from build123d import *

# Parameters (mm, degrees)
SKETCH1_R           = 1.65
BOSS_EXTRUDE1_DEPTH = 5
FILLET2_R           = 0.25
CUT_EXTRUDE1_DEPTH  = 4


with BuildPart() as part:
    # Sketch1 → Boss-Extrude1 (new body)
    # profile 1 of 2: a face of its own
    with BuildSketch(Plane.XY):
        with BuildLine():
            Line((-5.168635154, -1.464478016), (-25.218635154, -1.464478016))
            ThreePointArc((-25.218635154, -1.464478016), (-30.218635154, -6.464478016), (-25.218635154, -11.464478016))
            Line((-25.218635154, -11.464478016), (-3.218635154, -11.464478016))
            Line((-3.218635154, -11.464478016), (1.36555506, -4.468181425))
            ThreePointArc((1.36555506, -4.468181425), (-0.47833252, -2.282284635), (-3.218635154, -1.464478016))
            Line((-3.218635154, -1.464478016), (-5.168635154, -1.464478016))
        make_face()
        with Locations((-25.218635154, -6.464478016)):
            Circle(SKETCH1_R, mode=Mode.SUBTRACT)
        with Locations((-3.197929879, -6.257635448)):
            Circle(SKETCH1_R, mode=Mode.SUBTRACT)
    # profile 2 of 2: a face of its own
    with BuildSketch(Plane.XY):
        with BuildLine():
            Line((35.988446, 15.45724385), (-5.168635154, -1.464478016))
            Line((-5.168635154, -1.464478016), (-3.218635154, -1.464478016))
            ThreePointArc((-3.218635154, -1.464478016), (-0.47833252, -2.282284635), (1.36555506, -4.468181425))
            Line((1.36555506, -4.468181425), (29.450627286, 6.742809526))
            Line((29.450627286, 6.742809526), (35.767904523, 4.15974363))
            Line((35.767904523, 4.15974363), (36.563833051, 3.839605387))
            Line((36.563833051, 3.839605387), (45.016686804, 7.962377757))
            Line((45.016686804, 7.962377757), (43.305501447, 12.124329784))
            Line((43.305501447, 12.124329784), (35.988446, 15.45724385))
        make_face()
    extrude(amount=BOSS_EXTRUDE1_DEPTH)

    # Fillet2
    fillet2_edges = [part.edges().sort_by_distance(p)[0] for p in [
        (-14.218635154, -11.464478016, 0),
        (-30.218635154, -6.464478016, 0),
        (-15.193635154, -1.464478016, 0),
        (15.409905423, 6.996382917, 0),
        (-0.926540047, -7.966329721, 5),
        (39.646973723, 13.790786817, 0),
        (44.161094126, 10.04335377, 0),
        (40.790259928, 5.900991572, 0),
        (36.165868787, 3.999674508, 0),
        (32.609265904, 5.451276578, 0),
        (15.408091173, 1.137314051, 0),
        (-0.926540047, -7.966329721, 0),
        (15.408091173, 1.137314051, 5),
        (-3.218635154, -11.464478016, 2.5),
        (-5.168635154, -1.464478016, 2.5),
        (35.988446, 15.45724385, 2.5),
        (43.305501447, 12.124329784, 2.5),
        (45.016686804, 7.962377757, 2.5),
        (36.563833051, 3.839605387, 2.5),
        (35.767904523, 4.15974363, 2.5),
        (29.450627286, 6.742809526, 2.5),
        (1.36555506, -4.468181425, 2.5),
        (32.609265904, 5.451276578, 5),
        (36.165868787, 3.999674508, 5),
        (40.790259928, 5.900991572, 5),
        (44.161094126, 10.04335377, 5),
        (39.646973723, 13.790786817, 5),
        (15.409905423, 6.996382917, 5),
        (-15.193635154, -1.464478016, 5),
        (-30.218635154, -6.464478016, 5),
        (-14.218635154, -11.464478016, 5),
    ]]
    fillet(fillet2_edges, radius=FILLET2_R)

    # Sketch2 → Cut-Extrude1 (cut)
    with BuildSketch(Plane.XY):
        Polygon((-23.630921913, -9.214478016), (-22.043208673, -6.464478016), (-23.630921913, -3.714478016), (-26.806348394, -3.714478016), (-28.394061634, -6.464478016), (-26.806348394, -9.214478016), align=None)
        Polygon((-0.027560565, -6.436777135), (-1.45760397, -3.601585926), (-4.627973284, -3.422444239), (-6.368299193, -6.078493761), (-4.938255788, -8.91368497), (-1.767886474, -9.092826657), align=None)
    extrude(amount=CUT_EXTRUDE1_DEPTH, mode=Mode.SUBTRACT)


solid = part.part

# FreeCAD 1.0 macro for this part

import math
import FreeCAD as App
import Part
import Sketcher
from FreeCAD import Vector
Q = App.Units.Quantity


def edges_at(feature, points):
    """Names of the edges that pass closest to the given points."""
    edges = feature.Shape.Edges
    near = lambda p: min(range(len(edges)), key=lambda i: edges[i].distToShape(Part.Vertex(*p))[0])
    return sorted({f"Edge{near(p) + 1}" for p in points})


def add_polygon(sketch, points):
    """Adds a closed chain of lines whose ends are joined by coincident constraints."""
    first, n = sketch.GeometryCount, len(points)
    for a, b in zip(points, points[1:] + points[:1]):
        sketch.addGeometry(Part.LineSegment(App.Vector(*a, 0), App.Vector(*b, 0)), False)
    for i in range(n):
        sketch.addConstraint(Sketcher.Constraint("Coincident", first + i, 2, first + (i + 1) % n, 1))

doc = App.newDocument("Part")
body = doc.addObject("PartDesign::Body", "Body")

# Sketch on XY plane
sketch1 = body.newObject("Sketcher::SketchObject", "Sketch")
sketch1.AttachmentSupport = (doc.getObject("XY_Plane"), [""])
sketch1.MapMode = "FlatFace"
sketch1.addGeometry([
    Part.ArcOfCircle(Part.Circle(Vector(-25.2, -6.5, 0), Vector(0, 0, 1), 5), math.radians(90), math.radians(270)),  # 0
    Part.LineSegment(Vector(-25.2, -11.5, 0), Vector(-3.2, -11.5, 0)),  # 1
    Part.LineSegment(Vector(-3.2, -11.5, 0), Vector(1.4, -4.5, 0)),  # 2
    Part.LineSegment(Vector(1.4, -4.5, 0), Vector(29.5, 6.7, 0)),  # 3
    Part.LineSegment(Vector(29.5, 6.7, 0), Vector(35.8, 4.2, 0)),  # 4
    Part.LineSegment(Vector(35.8, 4.2, 0), Vector(36.6, 3.8, 0)),  # 5
    Part.LineSegment(Vector(36.6, 3.8, 0), Vector(45, 8, 0)),  # 6
    Part.LineSegment(Vector(45, 8, 0), Vector(43.3, 12.1, 0)),  # 7
    Part.LineSegment(Vector(43.3, 12.1, 0), Vector(36, 15.5, 0)),  # 8
    Part.LineSegment(Vector(36, 15.5, 0), Vector(-5.2, -1.5, 0)),  # 9
    Part.LineSegment(Vector(-5.2, -1.5, 0), Vector(-25.2, -1.5, 0)),  # 10
    Part.Circle(Vector(-25.2, -6.5, 0), Vector(0, 0, 1), 1.6),  # 11
    Part.Circle(Vector(-3.2, -6.3, 0), Vector(0, 0, 1), 1.6),  # 12
], False)
sketch1.addConstraint([
    Sketcher.Constraint("Tangent", 0, 2, 1, 1),
    Sketcher.Constraint("Coincident", 1, 2, 2, 1),
    Sketcher.Constraint("Coincident", 2, 2, 3, 1),
    Sketcher.Constraint("Coincident", 3, 2, 4, 1),
    Sketcher.Constraint("Coincident", 4, 2, 5, 1),
    Sketcher.Constraint("Coincident", 5, 2, 6, 1),
    Sketcher.Constraint("Coincident", 6, 2, 7, 1),
    Sketcher.Constraint("Coincident", 7, 2, 8, 1),
    Sketcher.Constraint("Coincident", 8, 2, 9, 1),
    Sketcher.Constraint("Coincident", 9, 2, 10, 1),
    Sketcher.Constraint("Tangent", 10, 2, 0, 1),
    Sketcher.Constraint("Horizontal", 1),
    Sketcher.Constraint("Horizontal", 10),
    Sketcher.Constraint("Coincident", 11, 3, 0, 3),
    Sketcher.Constraint("Equal", 11, 12),
    Sketcher.Constraint("Perpendicular", 7, 9),
    Sketcher.Constraint("Radius", 0, 5.0),
    Sketcher.Constraint("Diameter", 11, 3.3),
    Sketcher.Constraint("DistanceX", 1, 1, 1, 2, 22.0),
    Sketcher.Constraint("Distance", 7, 4.5),
    Sketcher.Constraint("Distance", 9, 44.5),
    Sketcher.Constraint("DistanceX", 10, 2, 10, 1, 20.05),
    Sketcher.Constraint("Angle", 7, Q("112.35 deg")),
    Sketcher.Constraint("Distance", 3, 30.24),
    Sketcher.Constraint("Distance", 5, 0.857899),
    Sketcher.Constraint("DistanceX", -1, 1, 7, 2, 43.305501),
    Sketcher.Constraint("DistanceY", 4, 2, 8, 2, 11.2975),
    Sketcher.Constraint("Distance", 4, 6.82497),
    Sketcher.Constraint("Distance", 6, 9.404679),
    Sketcher.Constraint("DistanceY", 0, 3, -1, 1, 6.464478),
    Sketcher.Constraint("DistanceX", 12, 3, -1, 1, 3.19793),
    Sketcher.Constraint("DistanceY", 2, 2, -1, 1, 4.468181),
    Sketcher.Constraint("DistanceY", -1, 1, 3, 2, 6.74281),
    Sketcher.Constraint("DistanceY", -1, 1, 7, 2, 12.12433),
    Sketcher.Constraint("DistanceX", 1, 2, 2, 2, 4.58419),
    Sketcher.Constraint("DistanceY", 12, 3, 4, 2, 10.417379),
    Sketcher.Constraint("DistanceX", 4, 2, 5, 2, 0.795929),
])
pad1 = body.newObject("PartDesign::Pad", "Pad")
pad1.Profile = sketch1
pad1.Length = 5
doc.recompute()

fillet = body.newObject("PartDesign::Fillet", "Fillet")
fillet.Base = (pad1, edges_at(pad1, [
    (-14.219, -11.464, 0),
    (-30.219, -6.464, 0),
    (-15.194, -1.464, 0),
    (15.41, 6.996, 0),
    (-0.927, -7.966, 5),
    (39.647, 13.791, 0),
    (44.161, 10.043, 0),
    (40.79, 5.901, 0),
    (36.166, 4, 0),
    (32.609, 5.451, 0),
    (15.408, 1.137, 0),
    (-0.927, -7.966, 0),
    (15.408, 1.137, 5),
    (-3.219, -11.464, 2.5),
    (-5.169, -1.464, 2.5),
    (35.988, 15.457, 2.5),
    (43.306, 12.124, 2.5),
    (45.017, 7.962, 2.5),
    (36.564, 3.84, 2.5),
    (35.768, 4.16, 2.5),
    (29.451, 6.743, 2.5),
    (1.366, -4.468, 2.5),
    (32.609, 5.451, 5),
    (36.166, 4, 5),
    (40.79, 5.901, 5),
    (44.161, 10.043, 5),
    (39.647, 13.791, 5),
    (15.41, 6.996, 5),
    (-15.194, -1.464, 5),
    (-30.219, -6.464, 5),
    (-14.219, -11.464, 5),
]))
fillet.Radius = 0.25

# Sketch on XY plane
sketch2 = body.newObject("Sketcher::SketchObject", "Sketch001")
sketch2.AttachmentSupport = (doc.getObject("XY_Plane"), [""])
sketch2.MapMode = "FlatFace"
add_polygon(sketch2, [(-23.6, -9.2), (-22, -6.5), (-23.6, -3.7), (-26.8, -3.7), (-28.4, -6.5), (-26.8, -9.2)])  # lines 0-5
add_polygon(sketch2, [(0, -6.4), (-1.5, -3.6), (-4.6, -3.4), (-6.4, -6.1), (-4.9, -8.9), (-1.8, -9.1)])  # lines 6-11
sketch2.addConstraint([
    Sketcher.Constraint("Horizontal", 2),
    Sketcher.Constraint("Horizontal", 5),
    Sketcher.Constraint("Parallel", 0, 3),
    Sketcher.Constraint("Parallel", 1, 4),
    Sketcher.Constraint("Parallel", 6, 9),
    Sketcher.Constraint("Parallel", 7, 10),
    Sketcher.Constraint("Parallel", 8, 11),
    Sketcher.Constraint("Horizontal", 0, 2, 3, 2),
    Sketcher.Constraint("Vertical", 2, 2, 4, 2),
    Sketcher.Constraint("Vertical", 1, 2, 5, 2),
    Sketcher.Constraint("Equal", 4, 6),
    Sketcher.Constraint("Equal", 6, 7),
    Sketcher.Constraint("Equal", 7, 8),
    Sketcher.Constraint("Equal", 8, 9),
    Sketcher.Constraint("Angle", 0, Q("60 deg")),
    Sketcher.Constraint("DistanceY", 4, 2, 2, 2, 5.5),
    Sketcher.Constraint("DistanceX", 8, 2, -1, 1, 6.368299),
    Sketcher.Constraint("DistanceY", 9, 2, 6, 2, 5.312099),
    Sketcher.Constraint("DistanceX", 2, 2, 2, 1, 3.175426),
    Sketcher.Constraint("DistanceX", 0, 2, -1, 1, 22.043209),
    Sketcher.Constraint("DistanceY", 0, 2, -1, 1, 6.464478),
    Sketcher.Constraint("DistanceX", 11, 2, -1, 1, 0.027561),
    Sketcher.Constraint("DistanceY", 6, 2, 7, 2, 0.179142),
    Sketcher.Constraint("DistanceY", 10, 2, 0, 2, 2.628349),
])
pocket1 = body.newObject("PartDesign::Pocket", "Pocket")
pocket1.Profile = sketch2
pocket1.Length = 4
pocket1.Reversed = True

doc.recompute()
